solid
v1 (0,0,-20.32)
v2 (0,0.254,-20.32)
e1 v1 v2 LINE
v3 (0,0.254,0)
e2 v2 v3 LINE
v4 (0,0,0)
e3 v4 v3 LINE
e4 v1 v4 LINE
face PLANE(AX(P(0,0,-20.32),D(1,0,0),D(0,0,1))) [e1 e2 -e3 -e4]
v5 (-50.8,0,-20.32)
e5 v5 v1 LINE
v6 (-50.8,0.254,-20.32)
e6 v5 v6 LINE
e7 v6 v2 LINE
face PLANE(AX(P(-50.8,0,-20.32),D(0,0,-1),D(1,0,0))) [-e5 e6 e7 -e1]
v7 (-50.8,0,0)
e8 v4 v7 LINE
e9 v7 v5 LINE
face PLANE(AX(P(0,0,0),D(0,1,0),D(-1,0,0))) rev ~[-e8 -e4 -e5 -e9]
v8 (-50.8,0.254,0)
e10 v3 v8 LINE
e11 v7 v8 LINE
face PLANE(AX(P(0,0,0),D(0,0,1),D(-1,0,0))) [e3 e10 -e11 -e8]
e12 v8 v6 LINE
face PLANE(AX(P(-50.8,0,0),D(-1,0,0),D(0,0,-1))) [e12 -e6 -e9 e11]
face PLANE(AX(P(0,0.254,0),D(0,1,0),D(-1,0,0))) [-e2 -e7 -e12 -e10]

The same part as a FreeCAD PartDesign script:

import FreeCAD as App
import Part
import Sketcher

V = App.Vector
Q = App.Units.Quantity

doc = App.newDocument("Part")
body = doc.addObject("PartDesign::Body", "Body")

sketch1 = body.newObject("Sketcher::SketchObject", "Sketch")
sketch1.AttachmentSupport = (doc.getObject("XZ_Plane"), [""])
sketch1.MapMode = "FlatFace"
sketch1.addGeometry(Part.LineSegment(V(-51, 0, 0), V(0, 0, 0)), False)
sketch1.addGeometry(Part.LineSegment(V(0, 0, 0), V(0, -20, 0)), False)
sketch1.addGeometry(Part.LineSegment(V(0, -20, 0), V(-51, -20, 0)), False)
sketch1.addGeometry(Part.LineSegment(V(-51, -20, 0), V(-51, 0, 0)), False)
sketch1.addConstraint(Sketcher.Constraint("Coincident", 0, 2, 1, 1))
sketch1.addConstraint(Sketcher.Constraint("Coincident", 1, 2, 2, 1))
sketch1.addConstraint(Sketcher.Constraint("Coincident", 2, 2, 3, 1))
sketch1.addConstraint(Sketcher.Constraint("Coincident", 3, 2, 0, 1))
sketch1.addConstraint(Sketcher.Constraint("Horizontal", 0))
sketch1.addConstraint(Sketcher.Constraint("Vertical", 1))
sketch1.addConstraint(Sketcher.Constraint("Horizontal", 2))
sketch1.addConstraint(Sketcher.Constraint("Vertical", 3))
sketch1.addConstraint(Sketcher.Constraint("Coincident", 0, 2, -1, 1))
sketch1.addConstraint(Sketcher.Constraint("DistanceX", 0, 1, 0, 2, Q("2 in")))
sketch1.addConstraint(Sketcher.Constraint("DistanceY", 1, 2, 1, 1, Q("0.8 in")))
pad1 = body.newObject("PartDesign::Pad", "Pad")
pad1.Profile = sketch1
pad1.Length = Q("0.01 in")
pad1.Reversed = True

doc.recompute()
